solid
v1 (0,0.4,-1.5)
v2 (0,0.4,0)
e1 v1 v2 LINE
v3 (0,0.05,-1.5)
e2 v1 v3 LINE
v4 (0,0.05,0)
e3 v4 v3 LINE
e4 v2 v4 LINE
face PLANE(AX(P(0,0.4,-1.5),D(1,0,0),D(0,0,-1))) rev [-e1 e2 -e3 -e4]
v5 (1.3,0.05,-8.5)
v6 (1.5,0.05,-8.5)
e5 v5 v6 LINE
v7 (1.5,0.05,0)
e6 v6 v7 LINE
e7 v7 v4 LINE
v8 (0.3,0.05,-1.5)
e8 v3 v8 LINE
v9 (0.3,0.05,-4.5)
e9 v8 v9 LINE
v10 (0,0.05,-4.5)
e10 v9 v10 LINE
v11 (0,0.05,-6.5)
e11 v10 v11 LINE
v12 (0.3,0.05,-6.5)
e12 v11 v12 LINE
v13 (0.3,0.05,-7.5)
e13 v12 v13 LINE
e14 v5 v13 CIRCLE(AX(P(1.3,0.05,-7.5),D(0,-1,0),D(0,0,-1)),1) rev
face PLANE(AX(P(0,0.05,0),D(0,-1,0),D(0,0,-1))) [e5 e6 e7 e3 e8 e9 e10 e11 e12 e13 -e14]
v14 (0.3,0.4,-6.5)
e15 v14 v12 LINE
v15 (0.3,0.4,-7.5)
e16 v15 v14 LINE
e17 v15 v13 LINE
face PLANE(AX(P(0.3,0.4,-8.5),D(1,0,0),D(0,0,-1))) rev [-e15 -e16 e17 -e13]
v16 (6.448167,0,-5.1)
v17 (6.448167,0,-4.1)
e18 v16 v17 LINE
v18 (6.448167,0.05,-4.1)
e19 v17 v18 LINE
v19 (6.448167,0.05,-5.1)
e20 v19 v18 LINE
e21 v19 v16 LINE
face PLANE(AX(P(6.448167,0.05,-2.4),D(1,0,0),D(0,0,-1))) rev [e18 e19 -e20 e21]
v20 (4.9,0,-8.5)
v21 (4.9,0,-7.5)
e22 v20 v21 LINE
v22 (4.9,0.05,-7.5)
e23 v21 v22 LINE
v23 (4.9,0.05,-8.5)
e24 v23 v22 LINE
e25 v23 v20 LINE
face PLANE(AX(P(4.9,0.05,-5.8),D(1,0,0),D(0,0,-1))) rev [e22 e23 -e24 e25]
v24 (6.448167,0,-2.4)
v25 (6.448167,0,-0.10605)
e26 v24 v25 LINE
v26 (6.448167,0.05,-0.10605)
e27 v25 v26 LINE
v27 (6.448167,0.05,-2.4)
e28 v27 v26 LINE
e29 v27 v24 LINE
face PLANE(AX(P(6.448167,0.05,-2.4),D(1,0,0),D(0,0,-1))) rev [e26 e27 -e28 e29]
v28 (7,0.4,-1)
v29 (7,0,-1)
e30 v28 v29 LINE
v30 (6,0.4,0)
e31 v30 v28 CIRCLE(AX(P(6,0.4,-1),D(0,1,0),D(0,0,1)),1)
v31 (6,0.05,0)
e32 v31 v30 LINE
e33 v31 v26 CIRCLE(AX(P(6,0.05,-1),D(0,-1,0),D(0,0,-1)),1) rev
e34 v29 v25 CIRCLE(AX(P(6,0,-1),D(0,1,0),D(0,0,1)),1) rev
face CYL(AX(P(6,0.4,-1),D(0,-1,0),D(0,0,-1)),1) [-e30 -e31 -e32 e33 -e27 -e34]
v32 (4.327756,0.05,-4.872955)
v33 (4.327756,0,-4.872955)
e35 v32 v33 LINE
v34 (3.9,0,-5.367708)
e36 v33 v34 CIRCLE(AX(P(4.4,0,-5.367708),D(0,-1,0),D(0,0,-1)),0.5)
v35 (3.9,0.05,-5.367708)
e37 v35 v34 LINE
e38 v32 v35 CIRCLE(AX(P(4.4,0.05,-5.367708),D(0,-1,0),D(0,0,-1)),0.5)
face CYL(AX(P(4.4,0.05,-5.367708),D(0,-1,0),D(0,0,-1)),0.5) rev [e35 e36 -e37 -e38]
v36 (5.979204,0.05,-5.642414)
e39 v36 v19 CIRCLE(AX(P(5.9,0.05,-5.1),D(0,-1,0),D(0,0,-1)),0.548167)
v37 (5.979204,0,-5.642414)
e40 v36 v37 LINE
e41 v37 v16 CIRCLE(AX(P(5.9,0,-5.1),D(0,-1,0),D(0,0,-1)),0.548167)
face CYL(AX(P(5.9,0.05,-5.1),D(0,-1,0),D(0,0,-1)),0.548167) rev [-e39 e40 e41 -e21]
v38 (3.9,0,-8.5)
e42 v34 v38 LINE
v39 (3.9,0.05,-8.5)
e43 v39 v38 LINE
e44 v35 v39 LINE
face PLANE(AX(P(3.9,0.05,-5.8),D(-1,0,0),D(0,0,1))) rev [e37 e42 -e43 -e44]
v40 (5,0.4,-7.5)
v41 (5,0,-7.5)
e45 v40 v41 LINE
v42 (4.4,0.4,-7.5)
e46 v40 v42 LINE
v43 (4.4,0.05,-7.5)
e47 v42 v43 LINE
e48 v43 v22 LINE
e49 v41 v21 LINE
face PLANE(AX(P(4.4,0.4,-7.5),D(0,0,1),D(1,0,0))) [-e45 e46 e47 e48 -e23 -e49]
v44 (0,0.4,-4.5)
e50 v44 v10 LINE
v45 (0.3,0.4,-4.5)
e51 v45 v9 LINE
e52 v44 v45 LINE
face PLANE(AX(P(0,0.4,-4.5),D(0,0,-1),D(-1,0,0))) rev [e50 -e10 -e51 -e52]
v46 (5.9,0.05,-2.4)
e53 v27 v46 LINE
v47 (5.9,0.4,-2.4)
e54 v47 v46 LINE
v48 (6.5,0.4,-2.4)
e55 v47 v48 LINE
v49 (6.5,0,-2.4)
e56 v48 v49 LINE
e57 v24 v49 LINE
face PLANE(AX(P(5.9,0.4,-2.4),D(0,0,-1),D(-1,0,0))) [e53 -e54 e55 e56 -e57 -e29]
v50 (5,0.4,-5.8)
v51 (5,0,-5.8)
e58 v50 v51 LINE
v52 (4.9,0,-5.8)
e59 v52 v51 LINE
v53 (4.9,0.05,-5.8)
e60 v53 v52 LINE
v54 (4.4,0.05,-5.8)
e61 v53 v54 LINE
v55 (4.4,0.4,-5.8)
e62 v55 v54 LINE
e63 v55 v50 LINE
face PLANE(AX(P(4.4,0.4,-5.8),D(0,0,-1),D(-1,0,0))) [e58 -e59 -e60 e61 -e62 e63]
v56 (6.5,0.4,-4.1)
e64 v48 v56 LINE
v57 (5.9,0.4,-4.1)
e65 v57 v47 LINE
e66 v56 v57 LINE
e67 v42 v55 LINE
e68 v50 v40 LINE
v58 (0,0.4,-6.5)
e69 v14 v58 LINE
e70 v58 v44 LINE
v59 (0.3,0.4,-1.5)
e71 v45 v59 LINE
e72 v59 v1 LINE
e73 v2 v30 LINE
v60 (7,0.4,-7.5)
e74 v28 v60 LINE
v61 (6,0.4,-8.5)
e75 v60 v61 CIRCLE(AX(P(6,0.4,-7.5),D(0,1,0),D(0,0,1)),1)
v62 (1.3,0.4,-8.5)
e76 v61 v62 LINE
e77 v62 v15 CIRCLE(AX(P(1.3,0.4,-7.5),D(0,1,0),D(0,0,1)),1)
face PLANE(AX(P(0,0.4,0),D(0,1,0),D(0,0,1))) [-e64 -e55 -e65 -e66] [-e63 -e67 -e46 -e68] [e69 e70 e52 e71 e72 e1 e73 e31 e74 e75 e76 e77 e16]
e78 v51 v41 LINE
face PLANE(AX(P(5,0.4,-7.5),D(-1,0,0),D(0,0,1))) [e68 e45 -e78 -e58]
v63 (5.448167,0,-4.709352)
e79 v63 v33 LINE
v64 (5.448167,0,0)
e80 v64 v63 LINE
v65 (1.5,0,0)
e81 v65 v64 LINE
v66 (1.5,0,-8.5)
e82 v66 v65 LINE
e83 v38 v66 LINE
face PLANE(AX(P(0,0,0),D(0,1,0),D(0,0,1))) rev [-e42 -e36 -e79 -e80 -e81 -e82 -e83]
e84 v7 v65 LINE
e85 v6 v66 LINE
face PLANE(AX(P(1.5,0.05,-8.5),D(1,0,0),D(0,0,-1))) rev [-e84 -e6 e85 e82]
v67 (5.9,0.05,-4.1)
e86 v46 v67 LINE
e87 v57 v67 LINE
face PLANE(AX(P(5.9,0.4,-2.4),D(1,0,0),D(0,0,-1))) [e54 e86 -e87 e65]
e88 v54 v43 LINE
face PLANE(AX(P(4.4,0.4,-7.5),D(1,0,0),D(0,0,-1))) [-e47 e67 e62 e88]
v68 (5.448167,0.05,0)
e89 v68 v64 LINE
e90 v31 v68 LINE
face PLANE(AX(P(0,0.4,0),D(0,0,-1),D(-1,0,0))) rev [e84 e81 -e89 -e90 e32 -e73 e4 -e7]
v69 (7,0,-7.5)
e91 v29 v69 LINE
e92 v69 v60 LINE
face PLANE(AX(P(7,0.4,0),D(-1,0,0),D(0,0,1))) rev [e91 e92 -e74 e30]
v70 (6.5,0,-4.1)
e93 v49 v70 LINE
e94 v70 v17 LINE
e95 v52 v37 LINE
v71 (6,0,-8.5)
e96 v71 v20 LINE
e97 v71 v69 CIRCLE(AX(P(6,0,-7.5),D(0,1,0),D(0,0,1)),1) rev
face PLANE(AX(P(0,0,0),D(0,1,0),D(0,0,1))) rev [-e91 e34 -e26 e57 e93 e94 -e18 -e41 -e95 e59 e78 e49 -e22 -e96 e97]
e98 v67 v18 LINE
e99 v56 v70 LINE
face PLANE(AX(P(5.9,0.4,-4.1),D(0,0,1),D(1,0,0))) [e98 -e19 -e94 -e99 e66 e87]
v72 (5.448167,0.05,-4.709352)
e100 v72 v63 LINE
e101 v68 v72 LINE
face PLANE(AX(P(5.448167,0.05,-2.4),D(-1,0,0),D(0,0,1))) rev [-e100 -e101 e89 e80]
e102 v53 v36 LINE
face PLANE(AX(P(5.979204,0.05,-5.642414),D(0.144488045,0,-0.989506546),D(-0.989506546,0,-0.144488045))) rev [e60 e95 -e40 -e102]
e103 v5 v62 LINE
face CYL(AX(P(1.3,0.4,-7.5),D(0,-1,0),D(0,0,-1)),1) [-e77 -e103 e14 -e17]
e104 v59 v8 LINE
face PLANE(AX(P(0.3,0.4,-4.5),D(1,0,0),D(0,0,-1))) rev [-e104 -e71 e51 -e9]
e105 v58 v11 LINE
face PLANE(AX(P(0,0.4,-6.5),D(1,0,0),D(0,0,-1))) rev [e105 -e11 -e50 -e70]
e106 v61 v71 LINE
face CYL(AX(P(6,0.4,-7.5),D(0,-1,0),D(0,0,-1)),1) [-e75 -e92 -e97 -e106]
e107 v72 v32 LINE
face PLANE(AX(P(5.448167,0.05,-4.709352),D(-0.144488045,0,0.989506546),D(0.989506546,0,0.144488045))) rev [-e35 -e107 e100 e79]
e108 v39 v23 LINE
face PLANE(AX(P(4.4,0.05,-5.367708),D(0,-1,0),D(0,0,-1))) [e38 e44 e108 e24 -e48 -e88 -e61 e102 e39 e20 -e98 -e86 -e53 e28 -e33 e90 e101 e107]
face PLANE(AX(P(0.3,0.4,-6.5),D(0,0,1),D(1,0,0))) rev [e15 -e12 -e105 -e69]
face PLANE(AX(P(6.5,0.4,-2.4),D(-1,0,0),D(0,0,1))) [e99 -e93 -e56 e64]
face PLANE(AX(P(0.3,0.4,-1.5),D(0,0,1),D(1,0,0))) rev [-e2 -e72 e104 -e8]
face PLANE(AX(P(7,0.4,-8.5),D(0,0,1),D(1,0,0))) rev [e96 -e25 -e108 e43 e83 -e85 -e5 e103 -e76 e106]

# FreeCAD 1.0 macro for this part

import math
import FreeCAD as App
import Part
import Sketcher


def edges_at(feature, points):
    """Names of the edges that pass closest to the given points."""
    edges = feature.Shape.Edges
    near = lambda p: min(range(len(edges)), key=lambda i: edges[i].distToShape(Part.Vertex(*p))[0])
    return sorted({f"Edge{near(p) + 1}" for p in points})


def add_polygon(sketch, points):
    """Adds a closed chain of lines whose ends are joined by coincident constraints."""
    first, n = sketch.GeometryCount, len(points)
    for a, b in zip(points, points[1:] + points[:1]):
        sketch.addGeometry(Part.LineSegment(App.Vector(*a, 0), App.Vector(*b, 0)), False)
    for i in range(n):
        sketch.addConstraint(Sketcher.Constraint("Coincident", first + i, 2, first + (i + 1) % n, 1))

doc = App.newDocument("Part")
body = doc.addObject("PartDesign::Body", "Body")

# Sketch on XZ plane
sketch1 = body.newObject("Sketcher::SketchObject", "Sketch")
sketch1.AttachmentSupport = (doc.getObject("XZ_Plane"), [""])
sketch1.MapMode = "FlatFace"
add_polygon(sketch1, [(0, 0), (7, 0), (7, -8.5), (0.3, -8.5), (0.3, -6.5), (0, -6.5), (0, -4.5), (0.3, -4.5), (0.3, -1.5), (0, -1.5)])  # lines 0-9
add_polygon(sketch1, [(6.5, -2.4), (5.9, -2.4), (5.9, -4.1), (6.5, -4.1)])  # lines 10-13
add_polygon(sketch1, [(5, -5.8), (4.4, -5.8), (4.4, -7.5), (5, -7.5)])  # lines 14-17
sketch1.addConstraint([
    Sketcher.Constraint("Horizontal", 0),
    Sketcher.Constraint("Vertical", 1),
    Sketcher.Constraint("Horizontal", 2),
    Sketcher.Constraint("Vertical", 3),
    Sketcher.Constraint("Horizontal", 4),
    Sketcher.Constraint("Vertical", 5),
    Sketcher.Constraint("Horizontal", 6),
    Sketcher.Constraint("Vertical", 7),
    Sketcher.Constraint("Horizontal", 8),
    Sketcher.Constraint("Vertical", 9),
    Sketcher.Constraint("Horizontal", 10),
    Sketcher.Constraint("Vertical", 11),
    Sketcher.Constraint("Horizontal", 12),
    Sketcher.Constraint("Vertical", 13),
    Sketcher.Constraint("Horizontal", 14),
    Sketcher.Constraint("Vertical", 15),
    Sketcher.Constraint("Horizontal", 16),
    Sketcher.Constraint("Vertical", 17),
    Sketcher.Constraint("Coincident", 9, 2, -1, 1),
    Sketcher.Constraint("PointOnObject", 4, 2, -2),
    Sketcher.Constraint("Vertical", 3, 2, 6, 2),
    Sketcher.Constraint("Equal", 12, 14),
    Sketcher.Constraint("Equal", 3, 5),
    Sketcher.Constraint("Equal", 13, 15),
    Sketcher.Constraint("DistanceX", 0, 1, 0, 2, 7.0),
    Sketcher.Constraint("DistanceY", 3, 1, 3, 2, 2.0),
    Sketcher.Constraint("DistanceY", 7, 1, 7, 2, 3.0),
    Sketcher.Constraint("DistanceX", 2, 2, 2, 1, 6.7),
    Sketcher.Constraint("DistanceX", 10, 2, 10, 1, 0.6),
    Sketcher.Constraint("DistanceY", 1, 2, 1, 1, 8.5),
    Sketcher.Constraint("DistanceY", 11, 2, 11, 1, 1.7),
    Sketcher.Constraint("DistanceX", -1, 1, 16, 2, 5.0),
    Sketcher.Constraint("DistanceY", 1, 2, 15, 2, 1.0),
    Sketcher.Constraint("DistanceX", -1, 1, 10, 2, 5.9),
    Sketcher.Constraint("DistanceY", 10, 2, -1, 1, 2.4),
])
pad1 = body.newObject("PartDesign::Pad", "Pad")
pad1.Profile = sketch1
pad1.Length = 0.4
pad1.Reversed = True
doc.recompute()

fillet = body.newObject("PartDesign::Fillet", "Fillet")
fillet.Base = (pad1, edges_at(pad1, [(0.3, 0.2, -8.5), (7, 0.2, -8.5), (7, 0.2, 0)]))
fillet.Radius = 1

# Sketch on XZ plane
sketch2 = body.newObject("Sketcher::SketchObject", "Sketch001")
sketch2.AttachmentSupport = (doc.getObject("XZ_Plane"), [""])
sketch2.MapMode = "FlatFace"
sketch2.addGeometry(Part.ArcOfCircle(Part.Circle(App.Vector(5.9, -5.1, 0), App.Vector(0, 0, 1), 0.55), math.radians(-82), math.radians(0)), False)  # 0
sketch2.addGeometry(Part.LineSegment(App.Vector(6.45, -5.1, 0), App.Vector(6.45, 0, 0)), False)  # 1
sketch2.addGeometry(Part.LineSegment(App.Vector(6.45, 0, 0), App.Vector(5.45, 0, 0)), False)  # 2
sketch2.addGeometry(Part.LineSegment(App.Vector(5.45, 0, 0), App.Vector(5.45, -4.71, 0)), False)  # 3
sketch2.addGeometry(Part.LineSegment(App.Vector(5.45, -4.71, 0), App.Vector(4.33, -4.87, 0)), False)  # 4
sketch2.addGeometry(Part.ArcOfCircle(Part.Circle(App.Vector(4.4, -5.37, 0), App.Vector(0, 0, 1), 0.5), math.radians(98), math.radians(180)), False)  # 5
sketch2.addGeometry(Part.LineSegment(App.Vector(3.9, -5.37, 0), App.Vector(3.9, -8.5, 0)), False)  # 6
sketch2.addGeometry(Part.ArcOfCircle(Part.Circle(App.Vector(4.4, -8.5, 0), App.Vector(0, 0, 1), 0.5), math.radians(180), math.radians(360)), False)  # 7
sketch2.addGeometry(Part.LineSegment(App.Vector(4.9, -8.5, 0), App.Vector(4.9, -5.8, 0)), False)  # 8
sketch2.addGeometry(Part.LineSegment(App.Vector(4.9, -5.8, 0), App.Vector(5.98, -5.64, 0)), False)  # 9
add_polygon(sketch2, [(0, 0), (0, -8.5), (1.5, -8.5), (1.5, 0)])  # lines 10-13
sketch2.addConstraint([
    Sketcher.Constraint("Tangent", 0, 2, 1, 1),
    Sketcher.Constraint("Coincident", 1, 2, 2, 1),
    Sketcher.Constraint("Coincident", 2, 2, 3, 1),
    Sketcher.Constraint("Coincident", 3, 2, 4, 1),
    Sketcher.Constraint("Tangent", 4, 2, 5, 1),
    Sketcher.Constraint("Tangent", 5, 2, 6, 1),
    Sketcher.Constraint("Tangent", 6, 2, 7, 1),
    Sketcher.Constraint("Tangent", 7, 2, 8, 1),
    Sketcher.Constraint("Coincident", 8, 2, 9, 1),
    Sketcher.Constraint("Tangent", 9, 2, 0, 1),
    Sketcher.Constraint("Vertical", 1),
    Sketcher.Constraint("Horizontal", 2),
    Sketcher.Constraint("Vertical", 3),
    Sketcher.Constraint("Vertical", 6),
    Sketcher.Constraint("Vertical", 8),
    Sketcher.Constraint("Vertical", 10),
    Sketcher.Constraint("Horizontal", 11),
    Sketcher.Constraint("Vertical", 12),
    Sketcher.Constraint("Horizontal", 13),
    Sketcher.Constraint("Coincident", 13, 2, -1, 1),
    Sketcher.Constraint("Equal", 5, 7),
    Sketcher.Constraint("PointOnObject", 1, 2, -1),
    Sketcher.Constraint("Parallel", 4, 9),
    Sketcher.Constraint("Horizontal", 7, 2, 10, 2),
    Sketcher.Constraint("Radius", 5, 0.5),
    Sketcher.Constraint("DistanceX", 2, 2, 2, 1, 1.0),
    Sketcher.Constraint("DistanceX", 11, 1, 11, 2, 1.5),
    Sketcher.Constraint("DistanceY", 1, 1, 1, 2, 5.1),
    Sketcher.Constraint("DistanceY", 8, 1, 8, 2, 2.7),
    Sketcher.Constraint("DistanceY", 10, 2, 10, 1, 8.5),
    Sketcher.Constraint("DistanceX", 5, 2, 0, 3, 2.0),
    Sketcher.Constraint("DistanceX", -1, 1, 0, 3, 5.9),
    Sketcher.Constraint("Radius", 0, 0.548167),
    Sketcher.Constraint("DistanceY", 3, 2, 3, 1, 4.709352),
])
pocket1 = body.newObject("PartDesign::Pocket", "Pocket")
pocket1.Profile = sketch2
pocket1.Length = 0.05

doc.recompute()
